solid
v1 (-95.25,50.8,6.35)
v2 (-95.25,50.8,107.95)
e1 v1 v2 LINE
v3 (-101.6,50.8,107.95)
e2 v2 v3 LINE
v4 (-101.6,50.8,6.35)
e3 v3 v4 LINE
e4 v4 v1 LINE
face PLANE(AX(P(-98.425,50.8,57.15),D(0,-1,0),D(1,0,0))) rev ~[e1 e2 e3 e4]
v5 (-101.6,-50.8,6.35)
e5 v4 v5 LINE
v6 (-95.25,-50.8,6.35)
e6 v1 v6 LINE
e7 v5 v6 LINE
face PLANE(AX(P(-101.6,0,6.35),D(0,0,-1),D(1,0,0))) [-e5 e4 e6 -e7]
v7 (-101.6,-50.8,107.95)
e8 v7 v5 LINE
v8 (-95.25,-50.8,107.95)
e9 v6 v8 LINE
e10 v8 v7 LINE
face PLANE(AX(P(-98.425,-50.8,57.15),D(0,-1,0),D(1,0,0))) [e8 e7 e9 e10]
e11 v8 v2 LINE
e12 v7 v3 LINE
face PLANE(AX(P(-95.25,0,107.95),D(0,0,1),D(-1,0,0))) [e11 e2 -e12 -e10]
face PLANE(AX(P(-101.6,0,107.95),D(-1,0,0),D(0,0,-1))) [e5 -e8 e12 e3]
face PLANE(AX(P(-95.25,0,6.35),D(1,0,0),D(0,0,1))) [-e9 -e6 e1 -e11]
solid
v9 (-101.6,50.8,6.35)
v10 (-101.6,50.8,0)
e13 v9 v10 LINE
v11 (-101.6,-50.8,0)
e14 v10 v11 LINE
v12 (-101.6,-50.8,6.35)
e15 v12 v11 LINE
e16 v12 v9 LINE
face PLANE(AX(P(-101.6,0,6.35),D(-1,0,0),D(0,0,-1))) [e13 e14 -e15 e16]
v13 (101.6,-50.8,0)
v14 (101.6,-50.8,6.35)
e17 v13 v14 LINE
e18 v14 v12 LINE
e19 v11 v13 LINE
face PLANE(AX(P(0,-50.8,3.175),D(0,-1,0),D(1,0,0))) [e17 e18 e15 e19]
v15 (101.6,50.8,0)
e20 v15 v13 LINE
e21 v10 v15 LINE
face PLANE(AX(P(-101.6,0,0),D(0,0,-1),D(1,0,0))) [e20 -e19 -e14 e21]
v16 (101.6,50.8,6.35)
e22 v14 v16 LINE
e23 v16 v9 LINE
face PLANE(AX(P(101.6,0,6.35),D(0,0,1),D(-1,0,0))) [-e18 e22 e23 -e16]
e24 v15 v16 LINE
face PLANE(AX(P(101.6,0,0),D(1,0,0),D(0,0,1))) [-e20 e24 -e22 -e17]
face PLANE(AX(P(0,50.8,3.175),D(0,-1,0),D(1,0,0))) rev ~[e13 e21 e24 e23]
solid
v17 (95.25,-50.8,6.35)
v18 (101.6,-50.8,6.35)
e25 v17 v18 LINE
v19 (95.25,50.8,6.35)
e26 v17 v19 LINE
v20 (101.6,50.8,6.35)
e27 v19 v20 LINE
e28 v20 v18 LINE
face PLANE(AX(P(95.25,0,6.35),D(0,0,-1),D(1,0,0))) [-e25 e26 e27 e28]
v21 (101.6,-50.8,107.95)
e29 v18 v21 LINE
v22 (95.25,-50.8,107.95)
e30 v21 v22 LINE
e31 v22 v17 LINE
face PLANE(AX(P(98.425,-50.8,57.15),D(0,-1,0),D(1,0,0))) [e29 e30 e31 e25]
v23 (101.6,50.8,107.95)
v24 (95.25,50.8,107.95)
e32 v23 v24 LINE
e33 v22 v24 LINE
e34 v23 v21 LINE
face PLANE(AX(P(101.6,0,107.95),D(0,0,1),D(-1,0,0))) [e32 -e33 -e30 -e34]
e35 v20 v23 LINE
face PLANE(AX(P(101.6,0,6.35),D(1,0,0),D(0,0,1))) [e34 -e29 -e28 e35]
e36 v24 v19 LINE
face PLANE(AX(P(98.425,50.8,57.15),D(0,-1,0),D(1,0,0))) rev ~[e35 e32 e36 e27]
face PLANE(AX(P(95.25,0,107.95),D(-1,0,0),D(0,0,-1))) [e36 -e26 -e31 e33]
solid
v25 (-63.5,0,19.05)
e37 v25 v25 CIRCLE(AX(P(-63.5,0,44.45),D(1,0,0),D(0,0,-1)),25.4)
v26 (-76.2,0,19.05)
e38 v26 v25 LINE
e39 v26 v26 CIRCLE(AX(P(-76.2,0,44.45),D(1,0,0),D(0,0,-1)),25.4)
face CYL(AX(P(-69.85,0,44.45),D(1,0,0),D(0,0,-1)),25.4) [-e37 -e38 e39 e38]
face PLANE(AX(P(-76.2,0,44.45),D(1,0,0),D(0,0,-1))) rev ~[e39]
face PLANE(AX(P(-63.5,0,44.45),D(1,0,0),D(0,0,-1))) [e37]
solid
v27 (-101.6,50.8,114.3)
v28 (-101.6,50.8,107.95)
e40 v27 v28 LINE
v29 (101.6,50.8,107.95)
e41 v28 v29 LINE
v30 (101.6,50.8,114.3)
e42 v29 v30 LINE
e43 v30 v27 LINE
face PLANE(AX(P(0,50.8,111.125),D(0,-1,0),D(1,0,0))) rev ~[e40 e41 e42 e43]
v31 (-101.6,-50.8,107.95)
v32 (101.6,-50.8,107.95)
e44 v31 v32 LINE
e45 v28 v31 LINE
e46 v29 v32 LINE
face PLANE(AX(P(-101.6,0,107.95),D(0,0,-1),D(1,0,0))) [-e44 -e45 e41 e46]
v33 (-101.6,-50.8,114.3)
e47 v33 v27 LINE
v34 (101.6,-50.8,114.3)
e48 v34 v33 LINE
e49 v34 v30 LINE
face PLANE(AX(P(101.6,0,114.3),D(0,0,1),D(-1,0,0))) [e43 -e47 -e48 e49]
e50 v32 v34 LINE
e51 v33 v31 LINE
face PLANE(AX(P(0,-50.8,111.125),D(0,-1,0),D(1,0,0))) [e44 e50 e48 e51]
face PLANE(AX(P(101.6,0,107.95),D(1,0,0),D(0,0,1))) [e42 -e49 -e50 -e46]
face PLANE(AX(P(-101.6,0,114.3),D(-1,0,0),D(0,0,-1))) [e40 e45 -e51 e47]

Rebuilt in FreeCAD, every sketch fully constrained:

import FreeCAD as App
import Part
import Sketcher

V = App.Vector
Q = App.Units.Quantity

doc = App.newDocument("Part")
body = doc.addObject("PartDesign::Body", "Body")

# Sketch on XZ plane
sketch1 = doc.addObject("Sketcher::SketchObject", "Sketch")
body.addObject(sketch1)
sketch1.AttachmentSupport = (doc.XZ_Plane, [""])
sketch1.MapMode = "FlatFace"
sketch1.addGeometry(Part.LineSegment(V(-102, 114, 0), V(-102, 108, 0)), False)
sketch1.addGeometry(Part.LineSegment(V(-102, 108, 0), V(102, 108, 0)), False)
sketch1.addGeometry(Part.LineSegment(V(102, 108, 0), V(102, 114, 0)), False)
sketch1.addGeometry(Part.LineSegment(V(102, 114, 0), V(-102, 114, 0)), False)
sketch1.addConstraint(Sketcher.Constraint("Coincident", 0, 2, 1, 1))
sketch1.addConstraint(Sketcher.Constraint("Coincident", 1, 2, 2, 1))
sketch1.addConstraint(Sketcher.Constraint("Coincident", 2, 2, 3, 1))
sketch1.addConstraint(Sketcher.Constraint("Coincident", 3, 2, 0, 1))
sketch1.addConstraint(Sketcher.Constraint("Vertical", 0))
sketch1.addConstraint(Sketcher.Constraint("Horizontal", 1))
sketch1.addConstraint(Sketcher.Constraint("Vertical", 2))
sketch1.addConstraint(Sketcher.Constraint("Horizontal", 3))
sketch1.addConstraint(Sketcher.Constraint("DistanceX", 1, 1, 1, 2, Q("8 in")))
sketch1.addConstraint(Sketcher.Constraint("DistanceX", 0, 2, -1, 1, Q("4 in")))
sketch1.addConstraint(Sketcher.Constraint("DistanceY", 0, 2, 0, 1, Q("0.25 in")))
sketch1.addConstraint(Sketcher.Constraint("DistanceY", -1, 1, 2, 2, Q("4.5 in")))
pad1 = doc.addObject("PartDesign::Pad", "Pad")
body.addObject(pad1)
pad1.Profile = sketch1
pad1.Length = Q("4 in")
pad1.Midplane = True
body2 = doc.addObject("PartDesign::Body", "Body001")

# Sketch on XZ plane
sketch2 = doc.addObject("Sketcher::SketchObject", "Sketch001")
body2.addObject(sketch2)
sketch2.AttachmentSupport = (doc.getObject("XZ_Plane001"), [""])
sketch2.MapMode = "FlatFace"
sketch2.addGeometry(Part.LineSegment(V(-102, 6, 0), V(-102, 0, 0)), False)
sketch2.addGeometry(Part.LineSegment(V(-102, 0, 0), V(102, 0, 0)), False)
sketch2.addGeometry(Part.LineSegment(V(102, 0, 0), V(102, 6, 0)), False)
sketch2.addGeometry(Part.LineSegment(V(102, 6, 0), V(-102, 6, 0)), False)
sketch2.addConstraint(Sketcher.Constraint("Coincident", 0, 2, 1, 1))
sketch2.addConstraint(Sketcher.Constraint("Coincident", 1, 2, 2, 1))
sketch2.addConstraint(Sketcher.Constraint("Coincident", 2, 2, 3, 1))
sketch2.addConstraint(Sketcher.Constraint("Coincident", 3, 2, 0, 1))
sketch2.addConstraint(Sketcher.Constraint("Vertical", 0))
sketch2.addConstraint(Sketcher.Constraint("Horizontal", 1))
sketch2.addConstraint(Sketcher.Constraint("Vertical", 2))
sketch2.addConstraint(Sketcher.Constraint("Horizontal", 3))
sketch2.addConstraint(Sketcher.Constraint("Symmetric", 0, 2, 1, 2, -1, 1))
sketch2.addConstraint(Sketcher.Constraint("DistanceX", 1, 1, 1, 2, Q("8 in")))
sketch2.addConstraint(Sketcher.Constraint("DistanceY", 0, 2, 0, 1, Q("0.25 in")))
pad2 = doc.addObject("PartDesign::Pad", "Pad001")
body2.addObject(pad2)
pad2.Profile = sketch2
pad2.Length = Q("4 in")
pad2.Midplane = True
body3 = doc.addObject("PartDesign::Body", "Body002")

# Sketch on XZ plane
sketch3 = doc.addObject("Sketcher::SketchObject", "Sketch002")
body3.addObject(sketch3)
sketch3.AttachmentSupport = (doc.getObject("XZ_Plane002"), [""])
sketch3.MapMode = "FlatFace"
sketch3.addGeometry(Part.LineSegment(V(-102, 108, 0), V(-102, 6, 0)), False)
sketch3.addGeometry(Part.LineSegment(V(-102, 6, 0), V(-95, 6, 0)), False)
sketch3.addGeometry(Part.LineSegment(V(-95, 6, 0), V(-95, 108, 0)), False)
sketch3.addGeometry(Part.LineSegment(V(-95, 108, 0), V(-102, 108, 0)), False)
sketch3.addConstraint(Sketcher.Constraint("Coincident", 0, 2, 1, 1))
sketch3.addConstraint(Sketcher.Constraint("Coincident", 1, 2, 2, 1))
sketch3.addConstraint(Sketcher.Constraint("Coincident", 2, 2, 3, 1))
sketch3.addConstraint(Sketcher.Constraint("Coincident", 3, 2, 0, 1))
sketch3.addConstraint(Sketcher.Constraint("Vertical", 0))
sketch3.addConstraint(Sketcher.Constraint("Horizontal", 1))
sketch3.addConstraint(Sketcher.Constraint("Vertical", 2))
sketch3.addConstraint(Sketcher.Constraint("Horizontal", 3))
sketch3.addConstraint(Sketcher.Constraint("DistanceY", 0, 2, 0, 1, Q("4 in")))
sketch3.addConstraint(Sketcher.Constraint("DistanceX", 0, 2, -1, 1, Q("4 in")))
sketch3.addConstraint(Sketcher.Constraint("DistanceX", 1, 1, 1, 2, Q("0.25 in")))
sketch3.addConstraint(Sketcher.Constraint("DistanceY", -1, 1, 0, 2, Q("0.25 in")))
pad3 = doc.addObject("PartDesign::Pad", "Pad002")
body3.addObject(pad3)
pad3.Profile = sketch3
pad3.Type = "TwoLengths"
pad3.Length = Q("2 in")
pad3.Length2 = Q("2 in")
body4 = doc.addObject("PartDesign::Body", "Body003")

# Sketch on XZ plane
sketch4 = doc.addObject("Sketcher::SketchObject", "Sketch003")
body4.addObject(sketch4)
sketch4.AttachmentSupport = (doc.getObject("XZ_Plane003"), [""])
sketch4.MapMode = "FlatFace"
sketch4.addGeometry(Part.LineSegment(V(95, 6, 0), V(102, 6, 0)), False)
sketch4.addGeometry(Part.LineSegment(V(102, 6, 0), V(102, 108, 0)), False)
sketch4.addGeometry(Part.LineSegment(V(102, 108, 0), V(95, 108, 0)), False)
sketch4.addGeometry(Part.LineSegment(V(95, 108, 0), V(95, 6, 0)), False)
sketch4.addConstraint(Sketcher.Constraint("Coincident", 0, 2, 1, 1))
sketch4.addConstraint(Sketcher.Constraint("Coincident", 1, 2, 2, 1))
sketch4.addConstraint(Sketcher.Constraint("Coincident", 2, 2, 3, 1))
sketch4.addConstraint(Sketcher.Constraint("Coincident", 3, 2, 0, 1))
sketch4.addConstraint(Sketcher.Constraint("Horizontal", 0))
sketch4.addConstraint(Sketcher.Constraint("Vertical", 1))
sketch4.addConstraint(Sketcher.Constraint("Horizontal", 2))
sketch4.addConstraint(Sketcher.Constraint("Vertical", 3))
sketch4.addConstraint(Sketcher.Constraint("DistanceY", 1, 1, 1, 2, Q("4 in")))
sketch4.addConstraint(Sketcher.Constraint("DistanceX", -1, 1, 0, 2, Q("4 in")))
sketch4.addConstraint(Sketcher.Constraint("DistanceX", 0, 1, 0, 2, Q("0.25 in")))
sketch4.addConstraint(Sketcher.Constraint("DistanceY", -1, 1, 0, 2, Q("0.25 in")))
pad4 = doc.addObject("PartDesign::Pad", "Pad003")
body4.addObject(pad4)
pad4.Profile = sketch4
pad4.Type = "TwoLengths"
pad4.Length = Q("2 in")
pad4.Length2 = Q("2 in")
body5 = doc.addObject("PartDesign::Body", "Body004")

# Sketch on XZ plane
sketch5 = doc.addObject("Sketcher::SketchObject", "Sketch004")
body5.addObject(sketch5)
sketch5.AttachmentSupport = (doc.getObject("XZ_Plane004"), [""])
sketch5.MapMode = "FlatFace"
sketch5.addGeometry(Part.LineSegment(V(-76, 44, 0), V(-76, 19, 0)), False)
sketch5.addGeometry(Part.LineSegment(V(-76, 19, 0), V(-64, 19, 0)), False)
sketch5.addGeometry(Part.LineSegment(V(-64, 19, 0), V(-64, 44, 0)), False)
sketch5.addGeometry(Part.LineSegment(V(-64, 44, 0), V(-76, 44, 0)), False)
sketch5.addGeometry(Part.LineSegment(V(-76, 44, 0), V(-64, 44, 0)), True)  # axis
sketch5.addConstraint(Sketcher.Constraint("Coincident", 0, 2, 1, 1))
sketch5.addConstraint(Sketcher.Constraint("Coincident", 1, 2, 2, 1))
sketch5.addConstraint(Sketcher.Constraint("Coincident", 2, 2, 3, 1))
sketch5.addConstraint(Sketcher.Constraint("Coincident", 3, 2, 0, 1))
sketch5.addConstraint(Sketcher.Constraint("Vertical", 0))
sketch5.addConstraint(Sketcher.Constraint("Horizontal", 1))
sketch5.addConstraint(Sketcher.Constraint("Vertical", 2))
sketch5.addConstraint(Sketcher.Constraint("Horizontal", 3))
sketch5.addConstraint(Sketcher.Constraint("Horizontal", 4))
sketch5.addConstraint(Sketcher.Constraint("Coincident", 4, 1, 3, 2))
sketch5.addConstraint(Sketcher.Constraint("Vertical", 1, 2, 4, 2))
sketch5.addConstraint(Sketcher.Constraint("DistanceY", 0, 2, 0, 1, Q("1 in")))
sketch5.addConstraint(Sketcher.Constraint("DistanceX", 1, 1, 1, 2, Q("0.5 in")))
sketch5.addConstraint(Sketcher.Constraint("DistanceX", 0, 2, -1, 1, Q("3 in")))
sketch5.addConstraint(Sketcher.Constraint("DistanceY", -1, 1, 0, 2, Q("0.75 in")))
revolution = doc.addObject("PartDesign::Revolution", "Revolution")
body5.addObject(revolution)
revolution.Profile = sketch5
revolution.ReferenceAxis = (sketch5, ["Axis0"])
revolution.Angle = 360

doc.recompute()
